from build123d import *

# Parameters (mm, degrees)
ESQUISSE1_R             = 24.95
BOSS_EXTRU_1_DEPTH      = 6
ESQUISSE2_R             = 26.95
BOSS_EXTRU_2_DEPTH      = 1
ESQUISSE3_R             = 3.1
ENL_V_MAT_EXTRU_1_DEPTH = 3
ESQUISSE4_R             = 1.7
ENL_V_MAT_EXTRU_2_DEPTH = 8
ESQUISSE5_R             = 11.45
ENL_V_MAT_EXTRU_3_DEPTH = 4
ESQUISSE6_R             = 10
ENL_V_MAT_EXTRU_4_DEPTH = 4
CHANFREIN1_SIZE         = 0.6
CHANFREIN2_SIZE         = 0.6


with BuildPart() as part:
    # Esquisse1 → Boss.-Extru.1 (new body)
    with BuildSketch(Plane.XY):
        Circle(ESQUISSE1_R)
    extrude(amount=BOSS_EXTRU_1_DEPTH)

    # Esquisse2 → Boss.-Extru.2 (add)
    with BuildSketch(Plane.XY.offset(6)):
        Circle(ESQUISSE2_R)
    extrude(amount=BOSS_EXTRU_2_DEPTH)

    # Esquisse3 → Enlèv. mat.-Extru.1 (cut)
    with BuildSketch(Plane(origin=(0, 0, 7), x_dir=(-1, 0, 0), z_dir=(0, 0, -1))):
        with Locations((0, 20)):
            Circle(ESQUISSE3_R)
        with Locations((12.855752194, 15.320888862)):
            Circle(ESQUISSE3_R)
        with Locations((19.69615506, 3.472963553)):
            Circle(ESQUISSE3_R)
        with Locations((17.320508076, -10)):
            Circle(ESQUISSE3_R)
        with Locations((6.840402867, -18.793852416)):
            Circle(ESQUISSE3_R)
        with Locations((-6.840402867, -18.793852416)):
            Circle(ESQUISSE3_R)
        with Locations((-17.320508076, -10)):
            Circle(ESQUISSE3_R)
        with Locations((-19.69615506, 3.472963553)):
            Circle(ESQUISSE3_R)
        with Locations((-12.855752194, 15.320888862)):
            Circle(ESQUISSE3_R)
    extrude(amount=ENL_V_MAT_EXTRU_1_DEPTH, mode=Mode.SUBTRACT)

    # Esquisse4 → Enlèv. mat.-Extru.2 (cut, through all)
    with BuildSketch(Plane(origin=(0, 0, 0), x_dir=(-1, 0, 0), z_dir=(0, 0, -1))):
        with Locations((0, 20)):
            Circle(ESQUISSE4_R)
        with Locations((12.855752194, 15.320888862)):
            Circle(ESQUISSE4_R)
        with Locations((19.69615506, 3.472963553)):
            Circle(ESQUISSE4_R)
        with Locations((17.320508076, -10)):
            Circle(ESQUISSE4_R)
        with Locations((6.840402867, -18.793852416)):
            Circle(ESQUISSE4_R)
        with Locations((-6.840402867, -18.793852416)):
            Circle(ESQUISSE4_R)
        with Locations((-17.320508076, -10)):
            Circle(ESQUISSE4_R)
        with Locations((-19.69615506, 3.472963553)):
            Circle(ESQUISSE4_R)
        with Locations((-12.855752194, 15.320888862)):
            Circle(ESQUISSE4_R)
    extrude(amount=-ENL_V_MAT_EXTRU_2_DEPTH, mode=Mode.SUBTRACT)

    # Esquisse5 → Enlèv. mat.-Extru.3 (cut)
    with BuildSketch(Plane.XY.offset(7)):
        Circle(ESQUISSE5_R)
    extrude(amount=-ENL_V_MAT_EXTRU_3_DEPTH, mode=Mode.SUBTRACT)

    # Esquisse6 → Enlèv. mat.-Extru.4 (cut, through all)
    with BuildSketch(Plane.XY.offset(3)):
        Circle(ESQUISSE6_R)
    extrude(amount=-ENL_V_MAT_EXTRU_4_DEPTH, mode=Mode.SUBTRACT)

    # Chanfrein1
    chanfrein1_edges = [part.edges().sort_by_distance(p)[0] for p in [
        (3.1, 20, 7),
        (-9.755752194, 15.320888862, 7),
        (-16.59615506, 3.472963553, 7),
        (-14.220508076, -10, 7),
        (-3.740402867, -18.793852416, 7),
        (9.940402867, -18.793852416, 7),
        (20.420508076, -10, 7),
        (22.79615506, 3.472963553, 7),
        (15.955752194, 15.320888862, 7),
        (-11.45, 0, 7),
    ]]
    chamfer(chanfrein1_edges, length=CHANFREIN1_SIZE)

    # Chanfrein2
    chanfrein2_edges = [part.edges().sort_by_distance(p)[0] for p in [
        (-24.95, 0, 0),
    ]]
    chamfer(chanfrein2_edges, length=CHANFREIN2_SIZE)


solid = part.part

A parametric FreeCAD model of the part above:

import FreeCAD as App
import Part
import Sketcher

V = App.Vector


def edges_at(feature, points):
    """Names of the edges that pass closest to the given points."""
    edges = feature.Shape.Edges
    near = lambda p: min(range(len(edges)), key=lambda i: edges[i].distToShape(Part.Vertex(*p))[0])
    return sorted({f"Edge{near(p) + 1}" for p in points})

doc = App.newDocument("Part")
body = doc.addObject("PartDesign::Body", "Body")

# Sketch on XY plane
sketch1 = body.newObject("Sketcher::SketchObject", "Sketch")
sketch1.AttachmentSupport = (doc.getObject("XY_Plane"), [""])
sketch1.MapMode = "FlatFace"
sketch1.addGeometry(Part.Circle(V(0, 0, 0), V(0, 0, 1), 24.95), False)
sketch1.addConstraint([
    Sketcher.Constraint("Coincident", 0, 3, -1, 1),
    Sketcher.Constraint("Diameter", 0, 49.9),
])
pad1 = body.newObject("PartDesign::Pad", "Pad")
pad1.Profile = sketch1
pad1.Length = 6

# Sketch on XY plane
sketch2 = body.newObject("Sketcher::SketchObject", "Sketch001")
sketch2.AttachmentSupport = (doc.getObject("XY_Plane"), [""])
sketch2.MapMode = "FlatFace"
sketch2.AttachmentOffset = App.Placement(V(0, 0, 6), App.Rotation())
sketch2.addGeometry(Part.Circle(V(0, 0, 0), V(0, 0, 1), 26.95), False)
sketch2.addConstraint([
    Sketcher.Constraint("Coincident", 0, 3, -1, 1),
    Sketcher.Constraint("Diameter", 0, 53.9),
])
pad2 = body.newObject("PartDesign::Pad", "Pad001")
pad2.Profile = sketch2
pad2.Length = 1

# Sketch on XY plane
sketch3 = body.newObject("Sketcher::SketchObject", "Sketch002")
sketch3.AttachmentSupport = (doc.getObject("XY_Plane"), [""])
sketch3.MapMode = "FlatFace"
sketch3.AttachmentOffset = App.Placement(V(0, 0, 7), App.Rotation())
sketch3.addGeometry([
    Part.Circle(V(0, 20, 0), V(0, 0, 1), 3.1),  # 0
    Part.Circle(V(-12.855752, 15.320889, 0), V(0, 0, 1), 3.1),  # 1
    Part.Circle(V(-19.696155, 3.472964, 0), V(0, 0, 1), 3.1),  # 2
    Part.Circle(V(-17.320508, -10, 0), V(0, 0, 1), 3.1),  # 3
    Part.Circle(V(-6.840403, -18.793852, 0), V(0, 0, 1), 3.1),  # 4
    Part.Circle(V(6.840403, -18.793852, 0), V(0, 0, 1), 3.1),  # 5
    Part.Circle(V(17.320508, -10, 0), V(0, 0, 1), 3.1),  # 6
    Part.Circle(V(19.696155, 3.472964, 0), V(0, 0, 1), 3.1),  # 7
    Part.Circle(V(12.855752, 15.320889, 0), V(0, 0, 1), 3.1),  # 8
], False)
sketch3.addConstraint([
    Sketcher.Constraint("Equal", 0, 1),
    Sketcher.Constraint("Equal", 1, 2),
    Sketcher.Constraint("Equal", 2, 3),
    Sketcher.Constraint("Equal", 3, 4),
    Sketcher.Constraint("Equal", 4, 5),
    Sketcher.Constraint("Equal", 5, 6),
    Sketcher.Constraint("Equal", 6, 7),
    Sketcher.Constraint("Equal", 7, 8),
    Sketcher.Constraint("Symmetric", 4, 3, 5, 3, -2),
    Sketcher.Constraint("Symmetric", 3, 3, 6, 3, -2),
    Sketcher.Constraint("Symmetric", 2, 3, 7, 3, -2),
    Sketcher.Constraint("Symmetric", 1, 3, 8, 3, -2),
    Sketcher.Constraint("PointOnObject", 0, 3, -2),
    Sketcher.Constraint("Diameter", 0, 6.2),
    Sketcher.Constraint("DistanceY", -1, 1, 0, 3, 20.0),
    Sketcher.Constraint("DistanceY", 3, 3, -1, 1, 10.0),
    Sketcher.Constraint("DistanceY", -1, 1, 1, 3, 15.320889),
    Sketcher.Constraint("DistanceX", 3, 3, -1, 1, 17.320508),
    Sketcher.Constraint("DistanceX", 1, 3, 4, 3, 6.015349),
    Sketcher.Constraint("DistanceY", 4, 3, 1, 3, 34.114741),
    Sketcher.Constraint("DistanceX", 3, 3, 5, 3, 24.160911),
    Sketcher.Constraint("DistanceX", 2, 3, -1, 1, 19.696155),
    Sketcher.Constraint("DistanceY", -1, 1, 2, 3, 3.472964),
])
pocket1 = body.newObject("PartDesign::Pocket", "Pocket")
pocket1.Profile = sketch3
pocket1.Length = 3

# Sketch on XY plane
sketch4 = body.newObject("Sketcher::SketchObject", "Sketch003")
sketch4.AttachmentSupport = (doc.getObject("XY_Plane"), [""])
sketch4.MapMode = "FlatFace"
sketch4.addGeometry([
    Part.Circle(V(0, 20, 0), V(0, 0, 1), 1.7),  # 0
    Part.Circle(V(-12.855752, 15.320889, 0), V(0, 0, 1), 1.7),  # 1
    Part.Circle(V(-19.696155, 3.472964, 0), V(0, 0, 1), 1.7),  # 2
    Part.Circle(V(-17.320508, -10, 0), V(0, 0, 1), 1.7),  # 3
    Part.Circle(V(-6.840403, -18.793852, 0), V(0, 0, 1), 1.7),  # 4
    Part.Circle(V(6.840403, -18.793852, 0), V(0, 0, 1), 1.7),  # 5
    Part.Circle(V(17.320508, -10, 0), V(0, 0, 1), 1.7),  # 6
    Part.Circle(V(19.696155, 3.472964, 0), V(0, 0, 1), 1.7),  # 7
    Part.Circle(V(12.855752, 15.320889, 0), V(0, 0, 1), 1.7),  # 8
], False)
sketch4.addConstraint([
    Sketcher.Constraint("Equal", 0, 1),
    Sketcher.Constraint("Equal", 1, 2),
    Sketcher.Constraint("Equal", 2, 3),
    Sketcher.Constraint("Equal", 3, 4),
    Sketcher.Constraint("Equal", 4, 5),
    Sketcher.Constraint("Equal", 5, 6),
    Sketcher.Constraint("Equal", 6, 7),
    Sketcher.Constraint("Equal", 7, 8),
    Sketcher.Constraint("Symmetric", 4, 3, 5, 3, -2),
    Sketcher.Constraint("Symmetric", 3, 3, 6, 3, -2),
    Sketcher.Constraint("Symmetric", 2, 3, 7, 3, -2),
    Sketcher.Constraint("Symmetric", 1, 3, 8, 3, -2),
    Sketcher.Constraint("PointOnObject", 0, 3, -2),
    Sketcher.Constraint("Diameter", 0, 3.4),
    Sketcher.Constraint("DistanceY", -1, 1, 0, 3, 20.0),
    Sketcher.Constraint("DistanceY", 3, 3, -1, 1, 10.0),
    Sketcher.Constraint("DistanceY", -1, 1, 1, 3, 15.320889),
    Sketcher.Constraint("DistanceX", 3, 3, -1, 1, 17.320508),
    Sketcher.Constraint("DistanceX", 1, 3, 4, 3, 6.015349),
    Sketcher.Constraint("DistanceY", 4, 3, 1, 3, 34.114741),
    Sketcher.Constraint("DistanceX", 3, 3, 5, 3, 24.160911),
    Sketcher.Constraint("DistanceX", 2, 3, -1, 1, 19.696155),
    Sketcher.Constraint("DistanceY", -1, 1, 2, 3, 3.472964),
])
pocket2 = body.newObject("PartDesign::Pocket", "Pocket001")
pocket2.Profile = sketch4
pocket2.Type = "ThroughAll"
pocket2.Reversed = True

# Sketch on XY plane
sketch5 = body.newObject("Sketcher::SketchObject", "Sketch004")
sketch5.AttachmentSupport = (doc.getObject("XY_Plane"), [""])
sketch5.MapMode = "FlatFace"
sketch5.AttachmentOffset = App.Placement(V(0, 0, 7), App.Rotation())
sketch5.addGeometry(Part.Circle(V(0, 0, 0), V(0, 0, 1), 11.45), False)
sketch5.addConstraint([
    Sketcher.Constraint("Coincident", 0, 3, -1, 1),
    Sketcher.Constraint("Diameter", 0, 22.9),
])
pocket3 = body.newObject("PartDesign::Pocket", "Pocket002")
pocket3.Profile = sketch5
pocket3.Length = 4

# Sketch on XY plane
sketch6 = body.newObject("Sketcher::SketchObject", "Sketch005")
sketch6.AttachmentSupport = (doc.getObject("XY_Plane"), [""])
sketch6.MapMode = "FlatFace"
sketch6.AttachmentOffset = App.Placement(V(0, 0, 3), App.Rotation())
sketch6.addGeometry(Part.Circle(V(0, 0, 0), V(0, 0, 1), 10), False)
sketch6.addConstraint([
    Sketcher.Constraint("Coincident", 0, 3, -1, 1),
    Sketcher.Constraint("Diameter", 0, 20.0),
])
pocket4 = body.newObject("PartDesign::Pocket", "Pocket003")
pocket4.Profile = sketch6
pocket4.Type = "ThroughAll"
doc.recompute()

chamfer = body.newObject("PartDesign::Chamfer", "Chamfer")
chamfer.Base = (pocket4, edges_at(pocket4, [
    (3.1, 20, 7),
    (-9.756, 15.321, 7),
    (-16.596, 3.473, 7),
    (-14.221, -10, 7),
    (-3.74, -18.794, 7),
    (9.94, -18.794, 7),
    (20.421, -10, 7),
    (22.796, 3.473, 7),
    (15.956, 15.321, 7),
    (-11.45, 0, 7),
]))
chamfer.Size = 0.6
doc.recompute()

chamfer2 = body.newObject("PartDesign::Chamfer", "Chamfer001")
chamfer2.Base = (chamfer, edges_at(chamfer, [(-24.95, 0, 0)]))
chamfer2.Size = 0.6

doc.recompute()
